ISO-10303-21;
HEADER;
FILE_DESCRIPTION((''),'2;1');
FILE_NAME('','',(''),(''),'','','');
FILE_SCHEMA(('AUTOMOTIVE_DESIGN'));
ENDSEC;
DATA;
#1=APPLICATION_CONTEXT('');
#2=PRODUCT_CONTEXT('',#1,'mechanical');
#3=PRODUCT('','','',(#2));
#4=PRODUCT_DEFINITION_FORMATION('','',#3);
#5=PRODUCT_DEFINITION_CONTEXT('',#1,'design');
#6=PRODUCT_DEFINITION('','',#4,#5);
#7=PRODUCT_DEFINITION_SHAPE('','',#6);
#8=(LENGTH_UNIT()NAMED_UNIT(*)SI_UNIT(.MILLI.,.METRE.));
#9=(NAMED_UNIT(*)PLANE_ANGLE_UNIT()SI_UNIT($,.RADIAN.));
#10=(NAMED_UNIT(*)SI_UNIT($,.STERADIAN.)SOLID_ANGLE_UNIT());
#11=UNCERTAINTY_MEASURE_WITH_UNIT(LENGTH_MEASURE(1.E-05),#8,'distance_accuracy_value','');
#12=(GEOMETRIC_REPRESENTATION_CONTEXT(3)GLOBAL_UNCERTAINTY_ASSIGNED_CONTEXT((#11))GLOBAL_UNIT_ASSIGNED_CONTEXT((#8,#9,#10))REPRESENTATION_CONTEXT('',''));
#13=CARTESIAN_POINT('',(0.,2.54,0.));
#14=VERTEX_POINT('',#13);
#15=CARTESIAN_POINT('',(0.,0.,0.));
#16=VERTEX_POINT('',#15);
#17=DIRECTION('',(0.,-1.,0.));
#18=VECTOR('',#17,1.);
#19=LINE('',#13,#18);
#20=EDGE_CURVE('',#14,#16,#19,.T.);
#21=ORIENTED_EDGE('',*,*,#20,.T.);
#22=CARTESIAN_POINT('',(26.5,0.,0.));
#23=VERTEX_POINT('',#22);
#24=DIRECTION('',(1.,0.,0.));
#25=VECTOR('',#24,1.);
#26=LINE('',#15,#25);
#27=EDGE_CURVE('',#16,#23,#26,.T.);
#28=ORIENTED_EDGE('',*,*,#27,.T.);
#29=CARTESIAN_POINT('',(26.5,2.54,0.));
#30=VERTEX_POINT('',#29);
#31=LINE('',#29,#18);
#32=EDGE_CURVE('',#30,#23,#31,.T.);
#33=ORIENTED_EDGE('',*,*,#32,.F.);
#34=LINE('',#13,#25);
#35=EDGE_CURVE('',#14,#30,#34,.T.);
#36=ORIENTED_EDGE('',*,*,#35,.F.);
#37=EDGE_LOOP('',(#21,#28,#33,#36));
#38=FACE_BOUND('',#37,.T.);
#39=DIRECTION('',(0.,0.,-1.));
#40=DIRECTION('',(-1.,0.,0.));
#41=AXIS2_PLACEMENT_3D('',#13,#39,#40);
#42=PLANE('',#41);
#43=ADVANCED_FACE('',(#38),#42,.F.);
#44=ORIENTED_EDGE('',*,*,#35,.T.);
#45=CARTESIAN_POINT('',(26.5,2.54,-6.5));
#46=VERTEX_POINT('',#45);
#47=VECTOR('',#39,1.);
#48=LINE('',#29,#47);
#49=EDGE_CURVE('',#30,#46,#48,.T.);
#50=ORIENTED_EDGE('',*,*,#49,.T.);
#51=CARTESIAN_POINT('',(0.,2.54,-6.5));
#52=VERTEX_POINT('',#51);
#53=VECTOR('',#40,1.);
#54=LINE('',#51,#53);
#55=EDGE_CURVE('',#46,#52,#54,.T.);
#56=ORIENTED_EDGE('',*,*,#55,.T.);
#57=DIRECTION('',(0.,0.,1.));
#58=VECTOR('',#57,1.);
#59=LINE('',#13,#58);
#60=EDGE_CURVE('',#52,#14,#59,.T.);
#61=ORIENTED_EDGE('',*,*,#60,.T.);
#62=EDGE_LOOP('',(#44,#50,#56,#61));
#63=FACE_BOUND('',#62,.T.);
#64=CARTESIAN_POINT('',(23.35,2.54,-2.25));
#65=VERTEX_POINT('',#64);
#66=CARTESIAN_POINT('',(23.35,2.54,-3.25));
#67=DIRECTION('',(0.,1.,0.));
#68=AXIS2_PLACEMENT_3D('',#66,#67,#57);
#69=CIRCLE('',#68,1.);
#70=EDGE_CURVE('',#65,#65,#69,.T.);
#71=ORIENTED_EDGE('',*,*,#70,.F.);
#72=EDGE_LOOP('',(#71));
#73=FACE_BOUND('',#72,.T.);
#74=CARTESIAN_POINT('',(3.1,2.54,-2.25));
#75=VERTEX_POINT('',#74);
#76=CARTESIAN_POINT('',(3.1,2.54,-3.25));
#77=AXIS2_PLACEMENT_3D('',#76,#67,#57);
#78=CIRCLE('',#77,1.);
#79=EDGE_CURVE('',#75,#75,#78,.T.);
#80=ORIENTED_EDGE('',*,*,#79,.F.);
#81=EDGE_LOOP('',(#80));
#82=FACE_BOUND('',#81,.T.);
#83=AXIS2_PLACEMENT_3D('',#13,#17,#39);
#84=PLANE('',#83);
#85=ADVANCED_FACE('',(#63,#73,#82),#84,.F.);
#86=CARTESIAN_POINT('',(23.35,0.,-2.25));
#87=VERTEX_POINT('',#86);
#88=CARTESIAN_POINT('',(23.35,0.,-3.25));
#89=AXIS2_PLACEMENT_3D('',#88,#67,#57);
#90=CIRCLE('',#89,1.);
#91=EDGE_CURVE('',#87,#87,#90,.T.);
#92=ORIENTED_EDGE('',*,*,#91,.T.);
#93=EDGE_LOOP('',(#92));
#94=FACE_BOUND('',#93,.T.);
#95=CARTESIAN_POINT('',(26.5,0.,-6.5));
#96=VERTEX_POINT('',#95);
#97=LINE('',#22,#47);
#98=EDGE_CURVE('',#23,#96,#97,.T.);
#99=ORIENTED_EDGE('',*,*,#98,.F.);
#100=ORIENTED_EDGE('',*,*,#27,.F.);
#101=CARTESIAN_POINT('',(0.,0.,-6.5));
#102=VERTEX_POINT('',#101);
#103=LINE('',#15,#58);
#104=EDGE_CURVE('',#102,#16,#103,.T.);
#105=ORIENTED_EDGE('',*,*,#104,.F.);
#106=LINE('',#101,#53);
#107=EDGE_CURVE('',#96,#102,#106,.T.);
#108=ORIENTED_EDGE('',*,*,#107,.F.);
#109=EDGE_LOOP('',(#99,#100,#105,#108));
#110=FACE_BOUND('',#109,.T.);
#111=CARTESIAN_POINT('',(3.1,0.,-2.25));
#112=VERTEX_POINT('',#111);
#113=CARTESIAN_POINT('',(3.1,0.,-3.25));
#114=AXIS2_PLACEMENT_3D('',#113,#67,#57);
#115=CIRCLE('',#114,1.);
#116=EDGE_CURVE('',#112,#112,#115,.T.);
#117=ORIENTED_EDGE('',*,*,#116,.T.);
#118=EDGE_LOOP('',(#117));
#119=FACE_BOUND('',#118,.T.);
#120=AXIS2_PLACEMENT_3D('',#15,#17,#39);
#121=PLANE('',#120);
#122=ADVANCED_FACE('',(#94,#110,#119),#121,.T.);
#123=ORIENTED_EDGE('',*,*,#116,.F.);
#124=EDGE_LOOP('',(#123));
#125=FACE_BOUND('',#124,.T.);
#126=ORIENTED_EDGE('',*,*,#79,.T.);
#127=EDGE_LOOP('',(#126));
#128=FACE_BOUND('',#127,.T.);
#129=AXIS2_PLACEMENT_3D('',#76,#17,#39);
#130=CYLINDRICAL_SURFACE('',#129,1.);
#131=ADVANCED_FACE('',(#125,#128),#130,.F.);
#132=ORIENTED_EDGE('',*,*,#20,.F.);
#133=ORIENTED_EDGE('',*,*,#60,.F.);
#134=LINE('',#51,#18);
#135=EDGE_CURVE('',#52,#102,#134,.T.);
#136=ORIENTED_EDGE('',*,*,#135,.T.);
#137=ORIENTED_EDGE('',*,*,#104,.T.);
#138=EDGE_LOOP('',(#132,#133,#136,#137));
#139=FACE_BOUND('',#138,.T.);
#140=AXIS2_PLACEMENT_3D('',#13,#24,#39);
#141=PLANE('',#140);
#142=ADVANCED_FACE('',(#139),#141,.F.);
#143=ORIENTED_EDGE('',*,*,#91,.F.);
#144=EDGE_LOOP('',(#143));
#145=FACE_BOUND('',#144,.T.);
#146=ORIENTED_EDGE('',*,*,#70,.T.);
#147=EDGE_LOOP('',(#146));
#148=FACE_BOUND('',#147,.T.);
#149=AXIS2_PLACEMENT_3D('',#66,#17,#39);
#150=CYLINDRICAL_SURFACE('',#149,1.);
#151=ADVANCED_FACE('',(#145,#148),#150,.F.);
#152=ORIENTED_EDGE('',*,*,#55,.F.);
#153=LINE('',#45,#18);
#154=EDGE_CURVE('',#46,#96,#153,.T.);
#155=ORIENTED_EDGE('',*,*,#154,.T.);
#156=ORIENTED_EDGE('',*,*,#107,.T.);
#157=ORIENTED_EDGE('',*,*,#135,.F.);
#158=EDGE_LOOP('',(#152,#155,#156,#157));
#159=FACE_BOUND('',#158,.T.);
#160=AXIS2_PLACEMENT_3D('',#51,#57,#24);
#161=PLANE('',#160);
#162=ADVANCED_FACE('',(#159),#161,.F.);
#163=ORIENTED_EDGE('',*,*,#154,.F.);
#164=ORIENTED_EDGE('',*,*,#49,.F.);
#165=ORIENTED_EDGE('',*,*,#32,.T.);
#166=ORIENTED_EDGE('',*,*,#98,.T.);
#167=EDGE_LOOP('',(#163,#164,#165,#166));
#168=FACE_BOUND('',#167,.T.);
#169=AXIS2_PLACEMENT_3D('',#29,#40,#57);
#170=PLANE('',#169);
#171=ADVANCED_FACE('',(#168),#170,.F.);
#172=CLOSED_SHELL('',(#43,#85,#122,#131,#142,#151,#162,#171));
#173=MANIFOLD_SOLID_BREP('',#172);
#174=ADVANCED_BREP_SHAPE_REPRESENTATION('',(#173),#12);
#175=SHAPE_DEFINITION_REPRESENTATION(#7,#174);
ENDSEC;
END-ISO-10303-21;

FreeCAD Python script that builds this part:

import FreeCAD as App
import Part
import Sketcher
from FreeCAD import Vector
Q = App.Units.Quantity


def add_polygon(sketch, points):
    """Adds a closed chain of lines whose ends are joined by coincident constraints."""
    first, n = sketch.GeometryCount, len(points)
    for a, b in zip(points, points[1:] + points[:1]):
        sketch.addGeometry(Part.LineSegment(App.Vector(*a, 0), App.Vector(*b, 0)), False)
    for i in range(n):
        sketch.addConstraint(Sketcher.Constraint("Coincident", first + i, 2, first + (i + 1) % n, 1))

doc = App.newDocument("Part")
body = doc.addObject("PartDesign::Body", "Body")

sketch1 = body.newObject("Sketcher::SketchObject", "Sketch")
sketch1.AttachmentSupport = (doc.getObject("XZ_Plane"), [""])
sketch1.MapMode = "FlatFace"
add_polygon(sketch1, [(0, -6.5), (0, 0), (26.5, 0), (26.5, -6.5)])
sketch1.addGeometry(Part.Circle(Vector(3.1, -3.25, 0), Vector(0, 0, 1), 1), False)
sketch1.addGeometry(Part.Circle(Vector(23.35, -3.25, 0), Vector(0, 0, 1), 1), False)
sketch1.addConstraint([
    Sketcher.Constraint("Vertical", 0),
    Sketcher.Constraint("Horizontal", 1),
    Sketcher.Constraint("Vertical", 2),
    Sketcher.Constraint("Horizontal", 3),
    Sketcher.Constraint("Coincident", 0, 2, -1, 1),
    Sketcher.Constraint("Equal", 4, 5),
    Sketcher.Constraint("Horizontal", 4, 3, 5, 3),
    Sketcher.Constraint("Diameter", 4, Q("2 mm")),
    Sketcher.Constraint("DistanceX", 1, 1, 1, 2, Q("26.5 mm")),
    Sketcher.Constraint("DistanceY", 0, 1, 0, 2, Q("6.5 mm")),
    Sketcher.Constraint("DistanceX", -1, 1, 4, 3, Q("3.1 mm")),
    Sketcher.Constraint("DistanceY", 4, 3, -1, 1, Q("3.25 mm")),
    Sketcher.Constraint("DistanceX", -1, 1, 5, 3, Q("23.35 mm")),
])
pad1 = body.newObject("PartDesign::Pad", "Pad")
pad1.Profile = sketch1
pad1.Length = 2.54
pad1.Reversed = True

doc.recompute()
